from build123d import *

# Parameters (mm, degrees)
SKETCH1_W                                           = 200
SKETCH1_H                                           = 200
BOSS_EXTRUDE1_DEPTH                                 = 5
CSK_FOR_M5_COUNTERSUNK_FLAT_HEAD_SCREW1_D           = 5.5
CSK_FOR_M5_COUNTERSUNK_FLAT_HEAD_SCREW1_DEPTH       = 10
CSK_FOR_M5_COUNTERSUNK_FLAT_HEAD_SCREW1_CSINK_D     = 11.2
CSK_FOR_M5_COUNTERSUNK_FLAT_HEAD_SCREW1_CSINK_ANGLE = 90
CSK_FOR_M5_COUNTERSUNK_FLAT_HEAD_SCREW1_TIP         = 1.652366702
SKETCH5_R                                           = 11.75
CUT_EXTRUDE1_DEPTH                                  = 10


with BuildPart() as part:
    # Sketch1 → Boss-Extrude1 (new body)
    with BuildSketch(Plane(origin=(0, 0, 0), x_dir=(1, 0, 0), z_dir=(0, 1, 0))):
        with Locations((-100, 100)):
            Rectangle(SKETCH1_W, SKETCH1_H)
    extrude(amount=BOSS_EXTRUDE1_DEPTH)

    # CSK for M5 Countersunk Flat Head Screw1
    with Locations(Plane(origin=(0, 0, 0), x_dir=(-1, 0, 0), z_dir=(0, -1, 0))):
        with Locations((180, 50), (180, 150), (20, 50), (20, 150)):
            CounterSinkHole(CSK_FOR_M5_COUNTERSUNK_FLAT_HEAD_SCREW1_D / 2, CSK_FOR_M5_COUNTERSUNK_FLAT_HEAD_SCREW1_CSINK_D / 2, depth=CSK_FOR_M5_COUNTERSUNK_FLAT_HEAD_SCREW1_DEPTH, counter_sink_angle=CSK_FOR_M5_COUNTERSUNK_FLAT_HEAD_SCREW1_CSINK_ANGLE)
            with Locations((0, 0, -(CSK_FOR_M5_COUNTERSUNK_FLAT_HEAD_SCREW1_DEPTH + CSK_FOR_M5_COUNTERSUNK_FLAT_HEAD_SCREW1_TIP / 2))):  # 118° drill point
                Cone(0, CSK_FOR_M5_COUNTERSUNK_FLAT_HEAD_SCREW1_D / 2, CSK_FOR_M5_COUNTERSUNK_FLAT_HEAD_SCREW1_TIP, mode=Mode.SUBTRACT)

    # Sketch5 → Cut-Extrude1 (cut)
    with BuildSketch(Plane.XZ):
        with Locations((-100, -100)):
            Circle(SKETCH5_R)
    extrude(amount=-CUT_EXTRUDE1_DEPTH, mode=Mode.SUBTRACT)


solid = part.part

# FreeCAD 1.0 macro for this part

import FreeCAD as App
import Part
import Sketcher
from FreeCAD import Vector
Q = App.Units.Quantity


def add_polygon(sketch, points):
    """Adds a closed chain of lines whose ends are joined by coincident constraints."""
    first, n = sketch.GeometryCount, len(points)
    for a, b in zip(points, points[1:] + points[:1]):
        sketch.addGeometry(Part.LineSegment(App.Vector(*a, 0), App.Vector(*b, 0)), False)
    for i in range(n):
        sketch.addConstraint(Sketcher.Constraint("Coincident", first + i, 2, first + (i + 1) % n, 1))

doc = App.newDocument("Part")
body = doc.addObject("PartDesign::Body", "Body")

sketch1 = body.newObject("Sketcher::SketchObject", "Sketch")
sketch1.AttachmentSupport = (doc.getObject("XZ_Plane"), [""])
sketch1.MapMode = "FlatFace"
add_polygon(sketch1, [(-200, -200), (-200, 0), (0, 0), (0, -200)])
sketch1.addConstraint(Sketcher.Constraint("Vertical", 0))
sketch1.addConstraint(Sketcher.Constraint("Horizontal", 1))
sketch1.addConstraint(Sketcher.Constraint("Vertical", 2))
sketch1.addConstraint(Sketcher.Constraint("Horizontal", 3))
sketch1.addConstraint(Sketcher.Constraint("Coincident", 1, 2, -1, 1))
sketch1.addConstraint(Sketcher.Constraint("Equal", 3, 0))
sketch1.addConstraint(Sketcher.Constraint("DistanceX", 1, 1, 1, 2, Q("200 mm")))
pad1 = body.newObject("PartDesign::Pad", "Pad")
pad1.Profile = sketch1
pad1.Length = 5
pad1.Reversed = True

sketch2 = body.newObject("Sketcher::SketchObject", "Sketch001")
sketch2.AttachmentSupport = (doc.getObject("XZ_Plane"), [""])
sketch2.MapMode = "FlatFace"
sketch2.addGeometry(Part.Circle(Vector(-180, -50, 0), Vector(0, 0, 1), 2.8), False)
sketch2.addGeometry(Part.Circle(Vector(-180, -150, 0), Vector(0, 0, 1), 2.8), False)
sketch2.addGeometry(Part.Circle(Vector(-20, -50, 0), Vector(0, 0, 1), 2.8), False)
sketch2.addGeometry(Part.Circle(Vector(-20, -150, 0), Vector(0, 0, 1), 2.8), False)
sketch2.addConstraint(Sketcher.Constraint("Equal", 0, 1))
sketch2.addConstraint(Sketcher.Constraint("Equal", 1, 2))
sketch2.addConstraint(Sketcher.Constraint("Equal", 2, 3))
sketch2.addConstraint(Sketcher.Constraint("Horizontal", 0, 3, 2, 3))
sketch2.addConstraint(Sketcher.Constraint("Horizontal", 1, 3, 3, 3))
sketch2.addConstraint(Sketcher.Constraint("Vertical", 0, 3, 1, 3))
sketch2.addConstraint(Sketcher.Constraint("Vertical", 2, 3, 3, 3))
sketch2.addConstraint(Sketcher.Constraint("Diameter", 0, Q("5.5 mm")))
sketch2.addConstraint(Sketcher.Constraint("DistanceX", 0, 3, -1, 1, Q("180 mm")))
sketch2.addConstraint(Sketcher.Constraint("DistanceY", 0, 3, -1, 1, Q("50 mm")))
sketch2.addConstraint(Sketcher.Constraint("DistanceY", 1, 3, -1, 1, Q("150 mm")))
sketch2.addConstraint(Sketcher.Constraint("DistanceX", 2, 3, -1, 1, Q("20 mm")))
doc.recompute()
hole = body.newObject("PartDesign::Hole", "Hole")
hole.Profile = sketch2
hole.ThreadType = "None"
hole.Diameter = 5.5
hole.DepthType = "Dimension"
hole.Depth = 10
hole.DrillPoint = "Angled"
hole.DrillPointAngle = 118
hole.HoleCutType = "Countersink"
hole.HoleCutDiameter = 11.2
hole.HoleCutCountersinkAngle = 90

sketch3 = body.newObject("Sketcher::SketchObject", "Sketch002")
sketch3.AttachmentSupport = (doc.getObject("XZ_Plane"), [""])
sketch3.MapMode = "FlatFace"
sketch3.addGeometry(Part.Circle(Vector(-100, -100, 0), Vector(0, 0, 1), 12), False)
sketch3.addConstraint(Sketcher.Constraint("Diameter", 0, Q("23.5 mm")))
sketch3.addConstraint(Sketcher.Constraint("DistanceX", 0, 3, -1, 1, Q("100 mm")))
sketch3.addConstraint(Sketcher.Constraint("DistanceY", 0, 3, -1, 1, Q("100 mm")))
pocket1 = body.newObject("PartDesign::Pocket", "Pocket")
pocket1.Profile = sketch3
pocket1.Length = 10

doc.recompute()
